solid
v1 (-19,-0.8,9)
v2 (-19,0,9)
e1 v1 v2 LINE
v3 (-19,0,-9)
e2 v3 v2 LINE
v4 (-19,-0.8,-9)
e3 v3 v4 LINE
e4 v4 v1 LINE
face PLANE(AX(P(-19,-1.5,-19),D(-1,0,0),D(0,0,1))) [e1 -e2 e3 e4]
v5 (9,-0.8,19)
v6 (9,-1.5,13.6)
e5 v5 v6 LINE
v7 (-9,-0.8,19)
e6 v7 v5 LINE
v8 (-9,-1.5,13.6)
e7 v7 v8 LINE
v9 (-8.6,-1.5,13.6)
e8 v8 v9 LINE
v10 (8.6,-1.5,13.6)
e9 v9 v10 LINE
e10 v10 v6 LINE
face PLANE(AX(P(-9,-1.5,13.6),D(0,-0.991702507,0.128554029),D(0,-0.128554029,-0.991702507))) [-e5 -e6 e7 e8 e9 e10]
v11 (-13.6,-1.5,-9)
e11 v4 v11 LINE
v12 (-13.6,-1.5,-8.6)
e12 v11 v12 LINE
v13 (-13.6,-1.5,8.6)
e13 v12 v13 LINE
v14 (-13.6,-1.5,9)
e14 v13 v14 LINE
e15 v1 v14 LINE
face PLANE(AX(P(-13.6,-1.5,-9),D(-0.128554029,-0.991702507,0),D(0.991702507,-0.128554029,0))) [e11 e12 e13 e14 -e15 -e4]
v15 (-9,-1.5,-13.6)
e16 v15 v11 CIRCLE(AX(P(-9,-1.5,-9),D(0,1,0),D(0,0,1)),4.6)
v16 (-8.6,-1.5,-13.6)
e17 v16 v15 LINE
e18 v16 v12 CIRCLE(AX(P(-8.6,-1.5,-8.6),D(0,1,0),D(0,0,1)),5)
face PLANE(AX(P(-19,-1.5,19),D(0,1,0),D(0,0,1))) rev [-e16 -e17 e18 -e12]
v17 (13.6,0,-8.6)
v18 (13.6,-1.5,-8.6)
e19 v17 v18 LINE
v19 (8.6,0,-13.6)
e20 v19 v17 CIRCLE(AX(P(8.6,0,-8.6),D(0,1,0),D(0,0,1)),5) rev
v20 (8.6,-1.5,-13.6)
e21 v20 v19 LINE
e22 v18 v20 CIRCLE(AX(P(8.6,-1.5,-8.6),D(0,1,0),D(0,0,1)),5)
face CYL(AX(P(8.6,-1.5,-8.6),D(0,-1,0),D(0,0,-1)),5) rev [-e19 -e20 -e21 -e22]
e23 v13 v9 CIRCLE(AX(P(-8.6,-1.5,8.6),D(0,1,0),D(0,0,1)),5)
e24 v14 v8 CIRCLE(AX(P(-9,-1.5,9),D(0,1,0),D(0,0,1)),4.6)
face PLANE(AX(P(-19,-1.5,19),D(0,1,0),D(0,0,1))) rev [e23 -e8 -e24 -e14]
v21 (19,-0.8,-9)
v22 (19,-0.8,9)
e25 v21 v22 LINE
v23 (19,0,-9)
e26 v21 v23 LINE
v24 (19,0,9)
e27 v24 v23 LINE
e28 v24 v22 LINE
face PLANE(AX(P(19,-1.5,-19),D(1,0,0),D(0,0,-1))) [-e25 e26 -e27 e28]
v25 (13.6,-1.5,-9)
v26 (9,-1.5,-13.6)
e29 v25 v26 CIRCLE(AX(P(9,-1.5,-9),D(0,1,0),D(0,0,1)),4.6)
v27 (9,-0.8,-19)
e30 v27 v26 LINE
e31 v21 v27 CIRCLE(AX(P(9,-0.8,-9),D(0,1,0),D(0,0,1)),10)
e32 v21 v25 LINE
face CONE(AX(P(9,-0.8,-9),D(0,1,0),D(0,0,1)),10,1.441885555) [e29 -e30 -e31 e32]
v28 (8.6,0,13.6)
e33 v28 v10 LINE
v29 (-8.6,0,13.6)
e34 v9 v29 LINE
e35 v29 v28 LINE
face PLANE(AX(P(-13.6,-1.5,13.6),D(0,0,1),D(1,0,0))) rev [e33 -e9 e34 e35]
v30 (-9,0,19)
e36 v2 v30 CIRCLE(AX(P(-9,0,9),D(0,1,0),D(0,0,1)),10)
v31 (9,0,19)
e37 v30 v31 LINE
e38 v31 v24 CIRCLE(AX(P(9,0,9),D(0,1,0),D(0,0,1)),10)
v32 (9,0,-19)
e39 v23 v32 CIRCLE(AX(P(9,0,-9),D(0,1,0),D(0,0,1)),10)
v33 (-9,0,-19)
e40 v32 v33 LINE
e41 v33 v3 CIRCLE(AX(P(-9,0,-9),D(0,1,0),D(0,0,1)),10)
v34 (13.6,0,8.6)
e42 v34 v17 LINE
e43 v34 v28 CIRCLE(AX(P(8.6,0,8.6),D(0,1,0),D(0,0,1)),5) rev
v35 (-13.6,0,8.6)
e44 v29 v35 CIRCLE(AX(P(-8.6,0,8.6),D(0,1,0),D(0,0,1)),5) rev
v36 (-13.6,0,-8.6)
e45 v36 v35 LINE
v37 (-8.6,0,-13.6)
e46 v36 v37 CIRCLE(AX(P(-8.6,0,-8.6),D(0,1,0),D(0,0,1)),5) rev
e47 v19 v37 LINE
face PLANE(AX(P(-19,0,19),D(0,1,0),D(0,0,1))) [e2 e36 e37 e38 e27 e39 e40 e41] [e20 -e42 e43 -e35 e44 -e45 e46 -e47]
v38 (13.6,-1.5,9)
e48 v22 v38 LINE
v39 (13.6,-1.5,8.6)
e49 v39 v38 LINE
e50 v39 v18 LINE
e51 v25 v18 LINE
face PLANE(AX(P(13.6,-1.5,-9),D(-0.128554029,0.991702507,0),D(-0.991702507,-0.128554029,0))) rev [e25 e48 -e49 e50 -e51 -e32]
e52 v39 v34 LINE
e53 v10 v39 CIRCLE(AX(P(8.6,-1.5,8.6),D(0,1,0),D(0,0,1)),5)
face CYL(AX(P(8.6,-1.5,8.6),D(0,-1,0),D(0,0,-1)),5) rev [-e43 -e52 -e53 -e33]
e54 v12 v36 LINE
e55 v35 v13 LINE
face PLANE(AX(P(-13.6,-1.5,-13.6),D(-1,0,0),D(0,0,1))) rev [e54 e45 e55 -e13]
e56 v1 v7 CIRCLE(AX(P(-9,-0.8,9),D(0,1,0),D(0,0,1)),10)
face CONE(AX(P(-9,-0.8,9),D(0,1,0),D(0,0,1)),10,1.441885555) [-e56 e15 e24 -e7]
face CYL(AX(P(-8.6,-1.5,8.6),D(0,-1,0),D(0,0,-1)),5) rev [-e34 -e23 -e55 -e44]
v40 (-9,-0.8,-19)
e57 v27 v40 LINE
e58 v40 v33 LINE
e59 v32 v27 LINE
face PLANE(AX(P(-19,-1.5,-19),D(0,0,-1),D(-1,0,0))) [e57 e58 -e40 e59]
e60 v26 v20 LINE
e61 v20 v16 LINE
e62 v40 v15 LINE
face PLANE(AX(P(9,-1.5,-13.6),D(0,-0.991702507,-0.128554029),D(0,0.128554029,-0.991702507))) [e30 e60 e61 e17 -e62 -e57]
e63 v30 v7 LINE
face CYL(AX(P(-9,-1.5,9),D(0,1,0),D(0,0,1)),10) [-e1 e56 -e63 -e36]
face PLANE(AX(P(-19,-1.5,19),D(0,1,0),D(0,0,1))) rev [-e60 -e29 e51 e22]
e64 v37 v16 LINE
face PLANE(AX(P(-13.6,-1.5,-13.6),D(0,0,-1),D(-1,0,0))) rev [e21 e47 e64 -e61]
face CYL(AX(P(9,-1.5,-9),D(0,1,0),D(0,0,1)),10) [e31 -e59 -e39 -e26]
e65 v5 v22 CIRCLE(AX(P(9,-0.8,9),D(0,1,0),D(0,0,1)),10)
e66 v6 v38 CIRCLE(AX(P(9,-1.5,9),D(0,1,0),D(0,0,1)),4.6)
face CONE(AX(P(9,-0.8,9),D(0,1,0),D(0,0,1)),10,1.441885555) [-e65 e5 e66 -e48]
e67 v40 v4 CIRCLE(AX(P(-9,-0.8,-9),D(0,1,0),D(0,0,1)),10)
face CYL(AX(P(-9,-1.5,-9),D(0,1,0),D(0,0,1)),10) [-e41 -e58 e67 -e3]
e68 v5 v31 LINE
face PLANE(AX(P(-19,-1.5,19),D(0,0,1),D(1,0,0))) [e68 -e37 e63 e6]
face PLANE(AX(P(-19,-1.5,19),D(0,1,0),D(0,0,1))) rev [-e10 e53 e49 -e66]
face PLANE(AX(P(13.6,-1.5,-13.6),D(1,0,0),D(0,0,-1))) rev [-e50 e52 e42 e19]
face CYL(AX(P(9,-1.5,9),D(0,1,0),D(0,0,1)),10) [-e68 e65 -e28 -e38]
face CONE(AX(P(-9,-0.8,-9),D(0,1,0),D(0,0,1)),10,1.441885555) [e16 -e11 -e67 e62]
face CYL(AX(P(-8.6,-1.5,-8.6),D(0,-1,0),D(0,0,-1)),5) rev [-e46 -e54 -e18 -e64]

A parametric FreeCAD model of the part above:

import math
import FreeCAD as App
import Part
import Sketcher

V = App.Vector


def edges_at(feature, points):
    """Names of the edges that pass closest to the given points."""
    edges = feature.Shape.Edges
    near = lambda p: min(range(len(edges)), key=lambda i: edges[i].distToShape(Part.Vertex(*p))[0])
    return sorted({f"Edge{near(p) + 1}" for p in points})


def add_polygon(sketch, points):
    """Adds a closed chain of lines whose ends are joined by coincident constraints."""
    first, n = sketch.GeometryCount, len(points)
    for a, b in zip(points, points[1:] + points[:1]):
        sketch.addGeometry(Part.LineSegment(App.Vector(*a, 0), App.Vector(*b, 0)), False)
    for i in range(n):
        sketch.addConstraint(Sketcher.Constraint("Coincident", first + i, 2, first + (i + 1) % n, 1))

doc = App.newDocument("Part")
params = doc.addObject("Spreadsheet::Sheet", "Params")
for row, (alias, value) in enumerate([
    ("sketch1_width", "38 mm"),
    ("sketch1_width2", "27.2 mm"),
    ("pad1_length", "1.5 mm"),
    ("fillet_radius", "5 mm"),
    ("fillet2_radius", "10 mm"),
    ("sketch2_width", "5.4 mm"),
    ("sketch2_height", "0.7 mm"),
    ("sketch3_radius", "10 mm"),
    ("sketch3_width", "18 mm"),
], start=1):
    params.set(f"A{row}", alias)
    params.set(f"B{row}", "=" + value)
    params.setAlias(f"B{row}", alias)

body = doc.addObject("PartDesign::Body", "Body")

sketch1 = body.newObject("Sketcher::SketchObject", "Sketch")
sketch1.AttachmentSupport = (doc.getObject("XZ_Plane"), [""])
sketch1.MapMode = "FlatFace"
add_polygon(sketch1, [(-19, -19), (-19, 19), (19, 19), (19, -19)])
add_polygon(sketch1, [(14, 14), (-14, 14), (-14, -14), (14, -14)])
sketch1.addConstraint([
    Sketcher.Constraint("Vertical", 0),
    Sketcher.Constraint("Horizontal", 1),
    Sketcher.Constraint("Vertical", 2),
    Sketcher.Constraint("Horizontal", 3),
    Sketcher.Constraint("Horizontal", 4),
    Sketcher.Constraint("Vertical", 5),
    Sketcher.Constraint("Horizontal", 6),
    Sketcher.Constraint("Vertical", 7),
    Sketcher.Constraint("Symmetric", 0, 2, 2, 2, -1, 1),
    Sketcher.Constraint("Symmetric", 4, 2, 6, 2, -1, 1),
    Sketcher.Constraint("Equal", 3, 0),
    Sketcher.Constraint("Equal", 6, 5),
    Sketcher.Constraint("DistanceX", 1, 1, 1, 2, 38.0),
    Sketcher.Constraint("DistanceX", 4, 2, 4, 1, 27.2),
])
sketch1.setExpression("Constraints[20]", "Params.sketch1_width")
sketch1.setExpression("Constraints[21]", "Params.sketch1_width2")
pad1 = body.newObject("PartDesign::Pad", "Pad")
pad1.Profile = sketch1
pad1.setExpression("Length", "Params.pad1_length")
doc.recompute()

fillet = body.newObject("PartDesign::Fillet", "Fillet")
fillet.Base = (pad1, edges_at(pad1, [
    (-13.6, -0.75, 13.6),
    (-13.6, -0.75, -13.6),
    (13.6, -0.75, -13.6),
    (13.6, -0.75, 13.6),
]))
fillet.setExpression("Radius", "Params.fillet_radius")
doc.recompute()

fillet2 = body.newObject("PartDesign::Fillet", "Fillet001")
fillet2.Base = (fillet, edges_at(fillet, [
    (-19, -0.75, -19),
    (19, -0.75, -19),
    (19, -0.75, 19),
    (-19, -0.75, 19),
]))
fillet2.setExpression("Radius", "Params.fillet2_radius")

sketch2 = body.newObject("Sketcher::SketchObject", "Sketch001")
sketch2.AttachmentSupport = (doc.getObject("XY_Plane"), [""])
sketch2.MapMode = "FlatFace"
add_polygon(sketch2, [(19, -1.5), (19, -0.8), (13.6, -1.5)])
sketch2.addConstraint([
    Sketcher.Constraint("Vertical", 0),
    Sketcher.Constraint("Horizontal", 2),
    Sketcher.Constraint("DistanceX", 2, 1, 2, 2, 5.4),
    Sketcher.Constraint("DistanceY", 0, 1, 0, 2, 0.7),
    Sketcher.Constraint("DistanceX", -1, 1, 0, 2, 19.0),
    Sketcher.Constraint("DistanceY", 0, 2, -1, 1, 0.8),
])
sketch2.setExpression("Constraints[5]", "Params.sketch2_width")
sketch2.setExpression("Constraints[6]", "Params.sketch2_height")

sketch3 = body.newObject("Sketcher::SketchObject", "Sketch002")
sketch3.AttachmentSupport = (doc.getObject("XZ_Plane"), [""])
sketch3.MapMode = "FlatFace"
sketch3.AttachmentOffset = App.Placement(V(0, 0, 1.5), App.Rotation())
sketch3.addGeometry([
    Part.LineSegment(V(9, -19, 0), V(-9, -19, 0)),
    Part.ArcOfCircle(Part.Circle(V(-9, -9, 0), V(0, 0, 1), 10), math.radians(180), math.radians(270)),
    Part.LineSegment(V(-19, -9, 0), V(-19, 9, 0)),
    Part.ArcOfCircle(Part.Circle(V(-9, 9, 0), V(0, 0, 1), 10), math.radians(90), math.radians(180)),
    Part.LineSegment(V(-9, 19, 0), V(9, 19, 0)),
    Part.ArcOfCircle(Part.Circle(V(9, 9, 0), V(0, 0, 1), 10), math.radians(0), math.radians(90)),
    Part.LineSegment(V(19, 9, 0), V(19, -9, 0)),
    Part.ArcOfCircle(Part.Circle(V(9, -9, 0), V(0, 0, 1), 10), math.radians(-90), math.radians(0)),
], False)
sketch3.addConstraint([
    Sketcher.Constraint("Tangent", 0, 2, 1, 2),
    Sketcher.Constraint("Tangent", 1, 1, 2, 1),
    Sketcher.Constraint("Tangent", 2, 2, 3, 2),
    Sketcher.Constraint("Tangent", 3, 1, 4, 1),
    Sketcher.Constraint("Tangent", 4, 2, 5, 2),
    Sketcher.Constraint("Tangent", 5, 1, 6, 1),
    Sketcher.Constraint("Tangent", 6, 2, 7, 2),
    Sketcher.Constraint("Tangent", 7, 1, 0, 1),
    Sketcher.Constraint("Horizontal", 0),
    Sketcher.Constraint("Vertical", 2),
    Sketcher.Constraint("Horizontal", 4),
    Sketcher.Constraint("Vertical", 6),
    Sketcher.Constraint("Equal", 1, 3),
    Sketcher.Constraint("Equal", 3, 5),
    Sketcher.Constraint("Equal", 5, 7),
    Sketcher.Constraint("Symmetric", 1, 3, 5, 3, -1, 1),
    Sketcher.Constraint("Equal", 4, 2),
    Sketcher.Constraint("Radius", 1, 10.0),
    Sketcher.Constraint("DistanceX", 0, 2, 0, 1, 18.0),
])
sketch3.setExpression("Constraints[17]", "Params.sketch3_radius")
sketch3.setExpression("Constraints[18]", "Params.sketch3_width")
doc.recompute()

subtractivepipe = body.newObject("PartDesign::SubtractivePipe", "SubtractivePipe")
subtractivepipe.Profile = sketch2
subtractivepipe.Spine = (sketch3, ["Edge1", "Edge2", "Edge3", "Edge4", "Edge5", "Edge6", "Edge7", "Edge8"])

doc.recompute()
